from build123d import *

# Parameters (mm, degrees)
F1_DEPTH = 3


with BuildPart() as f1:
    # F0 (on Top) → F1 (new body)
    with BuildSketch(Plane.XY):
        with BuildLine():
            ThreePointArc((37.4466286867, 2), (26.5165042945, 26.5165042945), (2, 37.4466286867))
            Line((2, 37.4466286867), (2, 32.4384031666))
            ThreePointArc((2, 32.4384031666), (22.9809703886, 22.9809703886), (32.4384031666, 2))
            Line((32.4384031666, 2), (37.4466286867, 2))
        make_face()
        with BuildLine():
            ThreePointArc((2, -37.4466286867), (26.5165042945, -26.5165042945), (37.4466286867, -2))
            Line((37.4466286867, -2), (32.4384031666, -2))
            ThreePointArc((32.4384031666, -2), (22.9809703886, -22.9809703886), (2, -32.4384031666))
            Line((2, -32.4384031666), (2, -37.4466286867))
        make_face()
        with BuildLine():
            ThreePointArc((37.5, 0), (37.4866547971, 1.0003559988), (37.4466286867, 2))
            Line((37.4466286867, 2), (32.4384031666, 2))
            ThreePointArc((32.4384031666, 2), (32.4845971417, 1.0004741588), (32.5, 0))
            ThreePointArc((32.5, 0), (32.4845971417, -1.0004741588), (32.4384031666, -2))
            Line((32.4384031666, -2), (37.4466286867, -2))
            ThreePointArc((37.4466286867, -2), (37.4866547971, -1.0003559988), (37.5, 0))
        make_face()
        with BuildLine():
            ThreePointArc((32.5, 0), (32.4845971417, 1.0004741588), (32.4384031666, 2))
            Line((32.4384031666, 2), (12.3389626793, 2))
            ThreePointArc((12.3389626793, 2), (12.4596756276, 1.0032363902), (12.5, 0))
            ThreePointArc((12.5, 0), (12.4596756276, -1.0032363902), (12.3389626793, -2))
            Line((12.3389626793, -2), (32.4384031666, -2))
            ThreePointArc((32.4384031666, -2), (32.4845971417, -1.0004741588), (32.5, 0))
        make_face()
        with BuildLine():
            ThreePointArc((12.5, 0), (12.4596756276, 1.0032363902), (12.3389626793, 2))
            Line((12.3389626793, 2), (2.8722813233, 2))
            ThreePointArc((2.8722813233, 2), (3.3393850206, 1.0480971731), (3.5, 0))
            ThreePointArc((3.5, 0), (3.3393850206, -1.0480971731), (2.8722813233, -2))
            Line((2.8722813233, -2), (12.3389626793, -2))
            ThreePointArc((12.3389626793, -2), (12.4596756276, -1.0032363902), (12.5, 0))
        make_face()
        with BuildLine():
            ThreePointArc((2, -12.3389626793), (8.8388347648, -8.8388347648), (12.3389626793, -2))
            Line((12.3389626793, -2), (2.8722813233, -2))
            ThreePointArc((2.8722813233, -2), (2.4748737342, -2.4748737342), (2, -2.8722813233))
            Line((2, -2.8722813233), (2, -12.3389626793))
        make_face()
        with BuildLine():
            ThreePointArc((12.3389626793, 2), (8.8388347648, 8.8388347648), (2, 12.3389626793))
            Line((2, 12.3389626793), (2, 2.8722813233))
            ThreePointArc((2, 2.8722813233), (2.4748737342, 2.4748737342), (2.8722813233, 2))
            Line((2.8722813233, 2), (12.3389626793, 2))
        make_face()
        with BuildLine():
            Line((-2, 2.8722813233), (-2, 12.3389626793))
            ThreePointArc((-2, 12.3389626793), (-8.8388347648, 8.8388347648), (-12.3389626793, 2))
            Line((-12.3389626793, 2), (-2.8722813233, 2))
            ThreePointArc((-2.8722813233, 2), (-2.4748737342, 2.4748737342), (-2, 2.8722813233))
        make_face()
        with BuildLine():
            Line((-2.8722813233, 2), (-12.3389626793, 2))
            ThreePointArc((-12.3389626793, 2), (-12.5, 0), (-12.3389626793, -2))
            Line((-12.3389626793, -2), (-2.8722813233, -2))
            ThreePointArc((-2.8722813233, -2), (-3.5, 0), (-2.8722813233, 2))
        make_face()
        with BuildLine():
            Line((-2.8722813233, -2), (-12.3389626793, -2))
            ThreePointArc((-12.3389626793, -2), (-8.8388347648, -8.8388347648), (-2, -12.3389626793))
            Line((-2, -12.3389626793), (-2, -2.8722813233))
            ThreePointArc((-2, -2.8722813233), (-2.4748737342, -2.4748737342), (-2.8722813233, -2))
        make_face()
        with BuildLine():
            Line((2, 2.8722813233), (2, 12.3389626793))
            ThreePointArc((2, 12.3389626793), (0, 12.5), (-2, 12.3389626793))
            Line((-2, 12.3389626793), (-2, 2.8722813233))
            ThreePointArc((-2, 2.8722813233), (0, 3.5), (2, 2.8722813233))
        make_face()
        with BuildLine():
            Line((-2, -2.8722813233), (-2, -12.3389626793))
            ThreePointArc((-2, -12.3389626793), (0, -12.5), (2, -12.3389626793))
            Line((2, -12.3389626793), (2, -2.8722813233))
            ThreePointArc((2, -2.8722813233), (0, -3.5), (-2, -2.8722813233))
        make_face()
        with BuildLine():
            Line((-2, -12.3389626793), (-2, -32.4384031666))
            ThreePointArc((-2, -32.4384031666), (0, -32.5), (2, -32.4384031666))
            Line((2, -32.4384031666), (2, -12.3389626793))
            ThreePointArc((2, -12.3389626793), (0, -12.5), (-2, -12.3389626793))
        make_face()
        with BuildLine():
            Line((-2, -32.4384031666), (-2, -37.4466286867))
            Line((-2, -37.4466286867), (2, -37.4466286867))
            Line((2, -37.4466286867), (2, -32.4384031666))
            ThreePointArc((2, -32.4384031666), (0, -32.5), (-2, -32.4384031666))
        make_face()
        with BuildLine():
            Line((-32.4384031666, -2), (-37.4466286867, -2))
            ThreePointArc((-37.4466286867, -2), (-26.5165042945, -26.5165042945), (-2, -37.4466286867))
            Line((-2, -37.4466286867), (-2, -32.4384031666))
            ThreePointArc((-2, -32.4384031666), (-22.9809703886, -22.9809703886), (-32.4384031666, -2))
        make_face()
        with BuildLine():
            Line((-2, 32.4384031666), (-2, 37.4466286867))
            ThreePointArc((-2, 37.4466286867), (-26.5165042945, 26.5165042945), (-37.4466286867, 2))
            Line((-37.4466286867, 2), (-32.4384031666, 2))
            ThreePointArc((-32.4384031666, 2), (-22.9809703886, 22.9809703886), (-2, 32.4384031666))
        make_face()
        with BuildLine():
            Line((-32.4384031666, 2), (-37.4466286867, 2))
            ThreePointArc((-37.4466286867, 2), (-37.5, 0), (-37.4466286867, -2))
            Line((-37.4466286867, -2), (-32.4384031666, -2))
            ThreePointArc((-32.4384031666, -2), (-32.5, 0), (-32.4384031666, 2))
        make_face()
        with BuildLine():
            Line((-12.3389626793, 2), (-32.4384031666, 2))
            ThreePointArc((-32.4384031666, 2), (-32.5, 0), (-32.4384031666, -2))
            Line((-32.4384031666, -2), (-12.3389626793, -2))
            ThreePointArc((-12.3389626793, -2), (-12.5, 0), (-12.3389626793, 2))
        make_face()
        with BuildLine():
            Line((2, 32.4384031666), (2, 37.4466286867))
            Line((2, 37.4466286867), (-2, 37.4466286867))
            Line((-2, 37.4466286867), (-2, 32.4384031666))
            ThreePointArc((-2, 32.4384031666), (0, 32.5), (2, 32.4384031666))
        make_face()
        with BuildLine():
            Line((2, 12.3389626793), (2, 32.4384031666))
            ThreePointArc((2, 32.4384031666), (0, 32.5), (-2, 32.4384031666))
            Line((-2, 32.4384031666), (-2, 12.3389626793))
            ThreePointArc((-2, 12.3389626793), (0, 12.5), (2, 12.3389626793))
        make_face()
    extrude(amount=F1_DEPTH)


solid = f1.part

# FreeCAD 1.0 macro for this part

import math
import FreeCAD as App
import Part
import Sketcher

V = App.Vector
Q = App.Units.Quantity

doc = App.newDocument("Part")
params = doc.addObject("Spreadsheet::Sheet", "Params")
for row, (alias, value) in enumerate([
    ("sketch1_radius", "37.5 mm"),
    ("sketch1_radius2", "32.5 mm"),
    ("sketch1_radius3", "12.5 mm"),
    ("sketch1_radius4", "3.5 mm"),
    ("sketch1_width", "4 mm"),
    ("pad1_length", "3 mm"),
], start=1):
    params.set(f"A{row}", alias)
    params.set(f"B{row}", "=" + value)
    params.setAlias(f"B{row}", alias)

body = doc.addObject("PartDesign::Body", "Body")

sketch1 = body.newObject("Sketcher::SketchObject", "Sketch")
sketch1.AttachmentSupport = (doc.getObject("XY_Plane"), [""])
sketch1.MapMode = "FlatFace"
sketch1.addGeometry([
    Part.ArcOfCircle(Part.Circle(V(0, 0, 0), V(0, 0, 1), 37.5), math.radians(93), math.radians(177)),
    Part.ArcOfCircle(Part.Circle(V(0, 0, 0), V(0, 0, 1), 37.5), math.radians(176.94), math.radians(183.06)),
    Part.ArcOfCircle(Part.Circle(V(0, 0, 0), V(0, 0, 1), 37.5), math.radians(-177), math.radians(-93)),
    Part.LineSegment(V(-2, -37.4, 0), V(2, -37.4, 0)),
    Part.ArcOfCircle(Part.Circle(V(0, 0, 0), V(0, 0, 1), 37.5), math.radians(-87), math.radians(-3)),
    Part.ArcOfCircle(Part.Circle(V(0, 0, 0), V(0, 0, 1), 37.5), math.radians(-3.06), math.radians(0)),
    Part.ArcOfCircle(Part.Circle(V(0, 0, 0), V(0, 0, 1), 37.5), math.radians(0), math.radians(3.06)),
    Part.ArcOfCircle(Part.Circle(V(0, 0, 0), V(0, 0, 1), 37.5), math.radians(3), math.radians(87)),
    Part.LineSegment(V(2, 37.4, 0), V(-2, 37.4, 0)),
    Part.LineSegment(V(-2, -12.3, 0), V(-2, -32.4, 0)),
    Part.ArcOfCircle(Part.Circle(V(0, 0, 0), V(0, 0, 1), 32.5), math.radians(-176), math.radians(-94)),
    Part.LineSegment(V(-32.4, -2, 0), V(-12.3, -2, 0)),
    Part.ArcOfCircle(Part.Circle(V(0, 0, 0), V(0, 0, 1), 12.5), math.radians(-171), math.radians(-99)),
    Part.ArcOfCircle(Part.Circle(V(0, 0, 0), V(0, 0, 1), 32.5), math.radians(94), math.radians(176)),
    Part.LineSegment(V(-2, 32.4, 0), V(-2, 12.3, 0)),
    Part.ArcOfCircle(Part.Circle(V(0, 0, 0), V(0, 0, 1), 12.5), math.radians(99), math.radians(171)),
    Part.LineSegment(V(-12.3, 2, 0), V(-32.4, 2, 0)),
    Part.ArcOfCircle(Part.Circle(V(0, 0, 0), V(0, 0, 1), 32.5), math.radians(4), math.radians(86)),
    Part.LineSegment(V(32.4, 2, 0), V(12.3, 2, 0)),
    Part.ArcOfCircle(Part.Circle(V(0, 0, 0), V(0, 0, 1), 12.5), math.radians(9), math.radians(81)),
    Part.LineSegment(V(2, 12.3, 0), V(2, 32.4, 0)),
    Part.ArcOfCircle(Part.Circle(V(0, 0, 0), V(0, 0, 1), 32.5), math.radians(-86), math.radians(-4)),
    Part.LineSegment(V(2, -32.4, 0), V(2, -12.3, 0)),
    Part.ArcOfCircle(Part.Circle(V(0, 0, 0), V(0, 0, 1), 12.5), math.radians(-81), math.radians(-9)),
    Part.LineSegment(V(12.3, -2, 0), V(32.4, -2, 0)),
    Part.ArcOfCircle(Part.Circle(V(0, 0, 0), V(0, 0, 1), 3.5), math.radians(-145), math.radians(-125)),
    Part.ArcOfCircle(Part.Circle(V(0, 0, 0), V(0, 0, 1), 3.5), math.radians(145), math.radians(215)),
    Part.ArcOfCircle(Part.Circle(V(0, 0, 0), V(0, 0, 1), 3.5), math.radians(125), math.radians(145)),
    Part.ArcOfCircle(Part.Circle(V(0, 0, 0), V(0, 0, 1), 3.5), math.radians(55), math.radians(125)),
    Part.ArcOfCircle(Part.Circle(V(0, 0, 0), V(0, 0, 1), 3.5), math.radians(35), math.radians(55)),
    Part.ArcOfCircle(Part.Circle(V(0, 0, 0), V(0, 0, 1), 3.5), math.radians(0), math.radians(35)),
    Part.ArcOfCircle(Part.Circle(V(0, 0, 0), V(0, 0, 1), 3.5), math.radians(-35), math.radians(0)),
    Part.ArcOfCircle(Part.Circle(V(0, 0, 0), V(0, 0, 1), 3.5), math.radians(-55), math.radians(-35)),
    Part.ArcOfCircle(Part.Circle(V(0, 0, 0), V(0, 0, 1), 3.5), math.radians(-125), math.radians(-55)),
], False)
sketch1.addConstraint([
    Sketcher.Constraint("Tangent", 0, 2, 1, 1),
    Sketcher.Constraint("Tangent", 1, 2, 2, 1),
    Sketcher.Constraint("Coincident", 2, 2, 3, 1),
    Sketcher.Constraint("Coincident", 3, 2, 4, 1),
    Sketcher.Constraint("Tangent", 4, 2, 5, 1),
    Sketcher.Constraint("Tangent", 5, 2, 6, 1),
    Sketcher.Constraint("Tangent", 6, 2, 7, 1),
    Sketcher.Constraint("Coincident", 7, 2, 8, 1),
    Sketcher.Constraint("Coincident", 8, 2, 0, 1),
    Sketcher.Constraint("Coincident", 9, 2, 10, 2),
    Sketcher.Constraint("Coincident", 10, 1, 11, 1),
    Sketcher.Constraint("Coincident", 11, 2, 12, 1),
    Sketcher.Constraint("Coincident", 12, 2, 9, 1),
    Sketcher.Constraint("Coincident", 13, 1, 14, 1),
    Sketcher.Constraint("Coincident", 14, 2, 15, 1),
    Sketcher.Constraint("Coincident", 15, 2, 16, 1),
    Sketcher.Constraint("Coincident", 16, 2, 13, 2),
    Sketcher.Constraint("Coincident", 17, 1, 18, 1),
    Sketcher.Constraint("Coincident", 18, 2, 19, 1),
    Sketcher.Constraint("Coincident", 19, 2, 20, 1),
    Sketcher.Constraint("Coincident", 20, 2, 17, 2),
    Sketcher.Constraint("Coincident", 21, 1, 22, 1),
    Sketcher.Constraint("Coincident", 22, 2, 23, 1),
    Sketcher.Constraint("Coincident", 23, 2, 24, 1),
    Sketcher.Constraint("Coincident", 24, 2, 21, 2),
    Sketcher.Constraint("Tangent", 25, 1, 26, 2),
    Sketcher.Constraint("Tangent", 26, 1, 27, 2),
    Sketcher.Constraint("Tangent", 27, 1, 28, 2),
    Sketcher.Constraint("Tangent", 28, 1, 29, 2),
    Sketcher.Constraint("Tangent", 29, 1, 30, 2),
    Sketcher.Constraint("Tangent", 30, 1, 31, 2),
    Sketcher.Constraint("Tangent", 31, 1, 32, 2),
    Sketcher.Constraint("Tangent", 32, 1, 33, 2),
    Sketcher.Constraint("Tangent", 33, 1, 25, 2),
    Sketcher.Constraint("Horizontal", 3),
    Sketcher.Constraint("Horizontal", 8),
    Sketcher.Constraint("Vertical", 9),
    Sketcher.Constraint("Horizontal", 11),
    Sketcher.Constraint("Vertical", 14),
    Sketcher.Constraint("Horizontal", 16),
    Sketcher.Constraint("Horizontal", 18),
    Sketcher.Constraint("Vertical", 20),
    Sketcher.Constraint("Vertical", 22),
    Sketcher.Constraint("Horizontal", 24),
    Sketcher.Constraint("Coincident", 0, 3, -1, 1),
    Sketcher.Constraint("Coincident", 2, 3, -1, 1),
    Sketcher.Constraint("Coincident", 4, 3, -1, 1),
    Sketcher.Constraint("Coincident", 6, 3, -1, 1),
    Sketcher.Constraint("Coincident", 10, 3, -1, 1),
    Sketcher.Constraint("Coincident", 12, 3, -1, 1),
    Sketcher.Constraint("Coincident", 13, 3, -1, 1),
    Sketcher.Constraint("Coincident", 15, 3, -1, 1),
    Sketcher.Constraint("Coincident", 17, 3, -1, 1),
    Sketcher.Constraint("Coincident", 19, 3, -1, 1),
    Sketcher.Constraint("Coincident", 21, 3, -1, 1),
    Sketcher.Constraint("Coincident", 23, 3, -1, 1),
    Sketcher.Constraint("Coincident", 25, 3, -1, 1),
    Sketcher.Constraint("Coincident", 27, 3, -1, 1),
    Sketcher.Constraint("Coincident", 29, 3, -1, 1),
    Sketcher.Constraint("Coincident", 31, 3, -1, 1),
    Sketcher.Constraint("Equal", 2, 4),
    Sketcher.Constraint("Equal", 6, 7),
    Sketcher.Constraint("Equal", 10, 13),
    Sketcher.Constraint("Equal", 12, 15),
    Sketcher.Constraint("Equal", 13, 17),
    Sketcher.Constraint("Equal", 15, 19),
    Sketcher.Constraint("Equal", 17, 21),
    Sketcher.Constraint("Equal", 19, 23),
    Sketcher.Constraint("PointOnObject", 5, 2, -1),
    Sketcher.Constraint("PointOnObject", 30, 1, -1),
    Sketcher.Constraint("Horizontal", 1, 2, 4, 2),
    Sketcher.Constraint("Horizontal", 0, 2, 6, 2),
    Sketcher.Constraint("Horizontal", 4, 2, 10, 1),
    Sketcher.Constraint("Horizontal", 6, 2, 15, 2),
    Sketcher.Constraint("Horizontal", 16, 2, 17, 1),
    Sketcher.Constraint("Horizontal", 14, 2, 19, 2),
    Sketcher.Constraint("Horizontal", 9, 2, 21, 1),
    Sketcher.Constraint("Horizontal", 11, 2, 23, 2),
    Sketcher.Constraint("Horizontal", 24, 2, 25, 1),
    Sketcher.Constraint("Horizontal", 18, 2, 26, 1),
    Sketcher.Constraint("Horizontal", 27, 1, 28, 1),
    Sketcher.Constraint("Horizontal", 26, 1, 29, 1),
    Sketcher.Constraint("Horizontal", 25, 1, 31, 1),
    Sketcher.Constraint("Horizontal", 32, 1, 33, 1),
    Sketcher.Constraint("Vertical", 0, 2, 1, 2),
    Sketcher.Constraint("Vertical", 3, 2, 7, 2),
    Sketcher.Constraint("Vertical", 8, 2, 9, 2),
    Sketcher.Constraint("Vertical", 12, 2, 13, 1),
    Sketcher.Constraint("Vertical", 14, 2, 27, 1),
    Sketcher.Constraint("Vertical", 28, 1, 32, 1),
    Sketcher.Constraint("Equal", 24, 9),
    Sketcher.Constraint("Radius", 0, Q("37.5 mm")),
    Sketcher.Constraint("Radius", 10, Q("32.5 mm")),
    Sketcher.Constraint("Radius", 12, Q("12.5 mm")),
    Sketcher.Constraint("Radius", 25, Q("3.5 mm")),
    Sketcher.Constraint("DistanceX", 3, 1, 3, 2, Q("4 mm")),
])
sketch1.setExpression("Constraints[91]", "Params.sketch1_radius")
sketch1.setExpression("Constraints[92]", "Params.sketch1_radius2")
sketch1.setExpression("Constraints[93]", "Params.sketch1_radius3")
sketch1.setExpression("Constraints[94]", "Params.sketch1_radius4")
sketch1.setExpression("Constraints[95]", "Params.sketch1_width")
pad1 = body.newObject("PartDesign::Pad", "Pad")
pad1.Profile = sketch1
pad1.setExpression("Length", "Params.pad1_length")

doc.recompute()
